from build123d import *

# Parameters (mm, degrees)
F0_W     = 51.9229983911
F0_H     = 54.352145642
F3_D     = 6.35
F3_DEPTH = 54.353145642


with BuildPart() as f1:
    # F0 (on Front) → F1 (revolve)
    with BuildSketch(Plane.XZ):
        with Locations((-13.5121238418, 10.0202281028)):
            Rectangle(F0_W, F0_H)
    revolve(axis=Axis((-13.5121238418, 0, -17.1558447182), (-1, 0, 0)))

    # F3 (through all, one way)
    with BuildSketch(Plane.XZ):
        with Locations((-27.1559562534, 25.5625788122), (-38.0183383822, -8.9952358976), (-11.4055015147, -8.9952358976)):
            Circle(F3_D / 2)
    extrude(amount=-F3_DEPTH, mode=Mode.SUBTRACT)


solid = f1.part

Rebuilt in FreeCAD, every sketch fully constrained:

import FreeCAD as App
import Part
import Sketcher
Q = App.Units.Quantity


def add_polygon(sketch, points):
    """Adds a closed chain of lines whose ends are joined by coincident constraints."""
    first, n = sketch.GeometryCount, len(points)
    for a, b in zip(points, points[1:] + points[:1]):
        sketch.addGeometry(Part.LineSegment(App.Vector(*a, 0), App.Vector(*b, 0)), False)
    for i in range(n):
        sketch.addConstraint(Sketcher.Constraint("Coincident", first + i, 2, first + (i + 1) % n, 1))

doc = App.newDocument("Part")
body = doc.addObject("PartDesign::Body", "Body")

# Sketch on XZ plane
sketch1 = body.newObject("Sketcher::SketchObject", "Sketch")
sketch1.AttachmentSupport = (doc.getObject("XZ_Plane"), [""])
sketch1.MapMode = "FlatFace"
add_polygon(sketch1, [(-39, 37), (-39, -17), (12, -17), (12, 37)])  # lines 0-3
sketch1.addGeometry(Part.LineSegment(App.Vector(12, -17, 0), App.Vector(-39, -17, 0)), True)  # axis
sketch1.addConstraint([
    Sketcher.Constraint("Vertical", 0),
    Sketcher.Constraint("Horizontal", 1),
    Sketcher.Constraint("Vertical", 2),
    Sketcher.Constraint("Horizontal", 3),
    Sketcher.Constraint("Horizontal", 4),
    Sketcher.Constraint("Coincident", 4, 1, 1, 2),
    Sketcher.Constraint("Vertical", 3, 2, 4, 2),
    Sketcher.Constraint("DistanceX", 1, 1, 1, 2, 51.922998),
    Sketcher.Constraint("DistanceY", -1, 1, 2, 2, 37.196301),
    Sketcher.Constraint("DistanceY", 0, 2, 0, 1, 54.352146),
    Sketcher.Constraint("DistanceX", 0, 2, -1, 1, 39.473623),
])
revolution = body.newObject("PartDesign::Revolution", "Revolution")
revolution.Profile = sketch1
revolution.ReferenceAxis = (sketch1, ["Axis0"])
revolution.Angle = 360

# Sketch on XZ plane
sketch2 = body.newObject("Sketcher::SketchObject", "Sketch001")
sketch2.AttachmentSupport = (doc.getObject("XZ_Plane"), [""])
sketch2.MapMode = "FlatFace"
sketch2.addGeometry([
    Part.Circle(App.Vector(-11.4, -9, 0), App.Vector(0, 0, 1), 3.2),
    Part.Circle(App.Vector(-27.2, 25.6, 0), App.Vector(0, 0, 1), 3.2),
    Part.Circle(App.Vector(-38, -9, 0), App.Vector(0, 0, 1), 3.2),
], False)
sketch2.addConstraint([
    Sketcher.Constraint("Equal", 0, 1),
    Sketcher.Constraint("Equal", 1, 2),
    Sketcher.Constraint("Horizontal", 0, 3, 2, 3),
    Sketcher.Constraint("Diameter", 0, Q("0.25 in")),
    Sketcher.Constraint("DistanceX", 0, 3, -1, 1, 11.405502),
    Sketcher.Constraint("DistanceY", -1, 1, 1, 3, 25.562579),
    Sketcher.Constraint("DistanceX", 2, 3, -1, 1, 38.018338),
    Sketcher.Constraint("DistanceY", 0, 3, -1, 1, 8.995236),
    Sketcher.Constraint("DistanceX", 1, 3, -1, 1, 27.155956),
])
pocket1 = body.newObject("PartDesign::Pocket", "Pocket")
pocket1.Profile = sketch2
pocket1.Type = "ThroughAll"

doc.recompute()
